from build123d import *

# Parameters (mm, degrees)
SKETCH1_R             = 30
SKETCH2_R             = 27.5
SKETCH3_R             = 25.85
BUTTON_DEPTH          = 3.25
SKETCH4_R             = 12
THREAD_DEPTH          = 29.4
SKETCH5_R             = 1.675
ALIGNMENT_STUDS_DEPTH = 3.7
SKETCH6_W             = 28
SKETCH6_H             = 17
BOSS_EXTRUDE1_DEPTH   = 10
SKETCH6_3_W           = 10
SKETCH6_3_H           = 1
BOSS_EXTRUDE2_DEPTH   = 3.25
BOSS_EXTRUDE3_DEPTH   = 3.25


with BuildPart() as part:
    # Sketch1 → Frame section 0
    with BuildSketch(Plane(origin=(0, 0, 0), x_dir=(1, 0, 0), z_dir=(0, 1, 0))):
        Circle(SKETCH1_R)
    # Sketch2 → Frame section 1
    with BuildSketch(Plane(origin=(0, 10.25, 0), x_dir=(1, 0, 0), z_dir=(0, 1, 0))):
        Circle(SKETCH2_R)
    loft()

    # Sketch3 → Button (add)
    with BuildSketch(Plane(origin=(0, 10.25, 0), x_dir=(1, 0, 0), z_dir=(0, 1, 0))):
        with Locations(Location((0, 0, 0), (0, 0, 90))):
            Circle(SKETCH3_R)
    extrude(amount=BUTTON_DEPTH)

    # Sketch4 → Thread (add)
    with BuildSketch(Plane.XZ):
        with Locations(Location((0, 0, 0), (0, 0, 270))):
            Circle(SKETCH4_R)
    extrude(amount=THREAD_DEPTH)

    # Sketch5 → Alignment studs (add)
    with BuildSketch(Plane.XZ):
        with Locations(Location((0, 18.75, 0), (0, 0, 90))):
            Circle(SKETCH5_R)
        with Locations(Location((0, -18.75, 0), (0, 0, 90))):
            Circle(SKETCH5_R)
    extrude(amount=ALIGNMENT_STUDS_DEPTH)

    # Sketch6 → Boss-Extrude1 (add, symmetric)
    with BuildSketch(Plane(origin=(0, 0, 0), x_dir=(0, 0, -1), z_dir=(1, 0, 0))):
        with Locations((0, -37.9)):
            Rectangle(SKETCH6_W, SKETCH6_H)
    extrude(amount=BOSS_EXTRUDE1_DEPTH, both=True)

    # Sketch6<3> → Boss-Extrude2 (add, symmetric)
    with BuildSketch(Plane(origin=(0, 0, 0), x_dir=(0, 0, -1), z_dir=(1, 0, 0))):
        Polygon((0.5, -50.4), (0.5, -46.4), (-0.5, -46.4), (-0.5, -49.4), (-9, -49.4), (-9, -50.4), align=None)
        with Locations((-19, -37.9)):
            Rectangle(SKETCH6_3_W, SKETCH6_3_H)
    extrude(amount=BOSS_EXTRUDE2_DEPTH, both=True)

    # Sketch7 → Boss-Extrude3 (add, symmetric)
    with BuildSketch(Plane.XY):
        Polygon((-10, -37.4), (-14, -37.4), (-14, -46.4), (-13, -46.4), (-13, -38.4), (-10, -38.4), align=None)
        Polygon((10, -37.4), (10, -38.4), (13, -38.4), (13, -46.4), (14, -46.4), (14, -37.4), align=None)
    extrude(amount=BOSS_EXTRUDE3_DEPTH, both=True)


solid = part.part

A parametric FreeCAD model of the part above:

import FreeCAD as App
import Part
import Sketcher
from FreeCAD import Vector
Q = App.Units.Quantity


def add_polygon(sketch, points):
    """Adds a closed chain of lines whose ends are joined by coincident constraints."""
    first, n = sketch.GeometryCount, len(points)
    for a, b in zip(points, points[1:] + points[:1]):
        sketch.addGeometry(Part.LineSegment(App.Vector(*a, 0), App.Vector(*b, 0)), False)
    for i in range(n):
        sketch.addConstraint(Sketcher.Constraint("Coincident", first + i, 2, first + (i + 1) % n, 1))

doc = App.newDocument("Part")
body = doc.addObject("PartDesign::Body", "Body")

# Sketch on XZ plane
sketch1 = body.newObject("Sketcher::SketchObject", "Sketch")
sketch1.AttachmentSupport = (doc.getObject("XZ_Plane"), [""])
sketch1.MapMode = "FlatFace"
sketch1.addGeometry(Part.Circle(Vector(0, 0, 0), Vector(0, 0, 1), 30), False)
sketch1.addConstraint([
    Sketcher.Constraint("Coincident", 0, 3, -1, 1),
    Sketcher.Constraint("Diameter", 0, Q("60 mm")),
])

# Sketch on XZ plane
sketch2 = body.newObject("Sketcher::SketchObject", "Sketch001")
sketch2.AttachmentSupport = (doc.getObject("XZ_Plane"), [""])
sketch2.MapMode = "FlatFace"
sketch2.AttachmentOffset = App.Placement(Vector(0, 0, -10.25), App.Rotation())
sketch2.addGeometry(Part.Circle(Vector(0, 0, 0), Vector(0, 0, 1), 28), False)
sketch2.addConstraint([
    Sketcher.Constraint("Coincident", 0, 3, -1, 1),
    Sketcher.Constraint("Diameter", 0, Q("55 mm")),
])

additiveloft = body.newObject("PartDesign::AdditiveLoft", "AdditiveLoft")
additiveloft.Profile = sketch1
additiveloft.Sections = [sketch2]

# Sketch on XZ plane
sketch3 = body.newObject("Sketcher::SketchObject", "Sketch002")
sketch3.AttachmentSupport = (doc.getObject("XZ_Plane"), [""])
sketch3.MapMode = "FlatFace"
sketch3.AttachmentOffset = App.Placement(Vector(0, 0, -10.25), App.Rotation())
sketch3.addGeometry(Part.Circle(Vector(0, 0, 0), Vector(0, 0, 1), 26), False)
sketch3.addConstraint([
    Sketcher.Constraint("Coincident", 0, 3, -1, 1),
    Sketcher.Constraint("Diameter", 0, Q("51.7 mm")),
])
pad1 = body.newObject("PartDesign::Pad", "Pad")
pad1.Profile = sketch3
pad1.Length = 3.25
pad1.Reversed = True

# Sketch on XZ plane
sketch4 = body.newObject("Sketcher::SketchObject", "Sketch003")
sketch4.AttachmentSupport = (doc.getObject("XZ_Plane"), [""])
sketch4.MapMode = "FlatFace"
sketch4.addGeometry(Part.Circle(Vector(0, 0, 0), Vector(0, 0, 1), 12), False)
sketch4.addConstraint([
    Sketcher.Constraint("Coincident", 0, 3, -1, 1),
    Sketcher.Constraint("Diameter", 0, Q("24 mm")),
])
pad2 = body.newObject("PartDesign::Pad", "Pad001")
pad2.Profile = sketch4
pad2.Length = 29.4

# Sketch on XZ plane
sketch5 = body.newObject("Sketcher::SketchObject", "Sketch004")
sketch5.AttachmentSupport = (doc.getObject("XZ_Plane"), [""])
sketch5.MapMode = "FlatFace"
sketch5.addGeometry([
    Part.Circle(Vector(0, 18.8, 0), Vector(0, 0, 1), 1.7),
    Part.Circle(Vector(0, -18.8, 0), Vector(0, 0, 1), 1.7),
], False)
sketch5.addConstraint([
    Sketcher.Constraint("Equal", 0, 1),
    Sketcher.Constraint("Symmetric", 0, 3, 1, 3, -1, 1),
    Sketcher.Constraint("PointOnObject", 0, 3, -2),
    Sketcher.Constraint("Diameter", 0, Q("3.35 mm")),
    Sketcher.Constraint("DistanceY", 1, 3, 0, 3, Q("37.5 mm")),
])
pad3 = body.newObject("PartDesign::Pad", "Pad002")
pad3.Profile = sketch5
pad3.Length = 3.7

# Sketch on YZ plane
sketch6 = body.newObject("Sketcher::SketchObject", "Sketch005")
sketch6.AttachmentSupport = (doc.getObject("YZ_Plane"), [""])
sketch6.MapMode = "FlatFace"
add_polygon(sketch6, [(-29, 14), (-46, 14), (-46, -14), (-29, -14)])  # lines 0-3
sketch6.addConstraint([
    Sketcher.Constraint("Horizontal", 0),
    Sketcher.Constraint("Vertical", 1),
    Sketcher.Constraint("Horizontal", 2),
    Sketcher.Constraint("Vertical", 3),
    Sketcher.Constraint("DistanceX", 0, 2, 0, 1, Q("17 mm")),
    Sketcher.Constraint("DistanceY", 1, 2, 1, 1, Q("28 mm")),
    Sketcher.Constraint("DistanceY", -1, 1, 0, 2, Q("14 mm")),
    Sketcher.Constraint("DistanceX", 0, 2, -1, 1, Q("46.4 mm")),
])
pad4 = body.newObject("PartDesign::Pad", "Pad003")
pad4.Profile = sketch6
pad4.Length = 20
pad4.Midplane = True

# Sketch on YZ plane
sketch7 = body.newObject("Sketcher::SketchObject", "Sketch006")
sketch7.AttachmentSupport = (doc.getObject("YZ_Plane"), [""])
sketch7.MapMode = "FlatFace"
add_polygon(sketch7, [(-50.4, -0.5), (-46.4, -0.5), (-46.4, 0.5), (-49.4, 0.5), (-49.4, 9), (-50.4, 9)])  # lines 0-5
add_polygon(sketch7, [(-37.4, 24), (-38.4, 24), (-38.4, 14), (-37.4, 14)])  # lines 6-9
sketch7.addConstraint([
    Sketcher.Constraint("Horizontal", 0),
    Sketcher.Constraint("Vertical", 1),
    Sketcher.Constraint("Horizontal", 2),
    Sketcher.Constraint("Vertical", 3),
    Sketcher.Constraint("Horizontal", 4),
    Sketcher.Constraint("Vertical", 5),
    Sketcher.Constraint("Horizontal", 6),
    Sketcher.Constraint("Vertical", 7),
    Sketcher.Constraint("Horizontal", 8),
    Sketcher.Constraint("Vertical", 9),
    Sketcher.Constraint("Equal", 4, 6),
    Sketcher.Constraint("Equal", 8, 1),
    Sketcher.Constraint("DistanceX", 0, 1, 0, 2, Q("4 mm")),
    Sketcher.Constraint("DistanceX", 2, 2, 2, 1, Q("3 mm")),
    Sketcher.Constraint("DistanceY", 7, 2, 7, 1, Q("10 mm")),
    Sketcher.Constraint("DistanceY", 3, 1, 3, 2, Q("8.5 mm")),
    Sketcher.Constraint("DistanceY", -1, 1, 3, 2, Q("9 mm")),
    Sketcher.Constraint("DistanceY", -1, 1, 6, 2, Q("24 mm")),
    Sketcher.Constraint("DistanceX", 3, 2, 6, 2, Q("11 mm")),
    Sketcher.Constraint("DistanceX", 0, 2, -1, 1, Q("46.4 mm")),
])
pad5 = body.newObject("PartDesign::Pad", "Pad004")
pad5.Profile = sketch7
pad5.Length = 6.5
pad5.Midplane = True

# Sketch on XY plane
sketch8 = body.newObject("Sketcher::SketchObject", "Sketch007")
sketch8.AttachmentSupport = (doc.getObject("XY_Plane"), [""])
sketch8.MapMode = "FlatFace"
add_polygon(sketch8, [(-10, -37.4), (-14, -37.4), (-14, -46.4), (-13, -46.4), (-13, -38.4), (-10, -38.4)])  # lines 0-5
add_polygon(sketch8, [(10, -37.4), (10, -38.4), (13, -38.4), (13, -46.4), (14, -46.4), (14, -37.4)])  # lines 6-11
sketch8.addConstraint([
    Sketcher.Constraint("Horizontal", 0),
    Sketcher.Constraint("Vertical", 1),
    Sketcher.Constraint("Horizontal", 2),
    Sketcher.Constraint("Vertical", 3),
    Sketcher.Constraint("Horizontal", 4),
    Sketcher.Constraint("Vertical", 5),
    Sketcher.Constraint("Vertical", 6),
    Sketcher.Constraint("Horizontal", 7),
    Sketcher.Constraint("Vertical", 8),
    Sketcher.Constraint("Horizontal", 9),
    Sketcher.Constraint("Vertical", 10),
    Sketcher.Constraint("Horizontal", 11),
    Sketcher.Constraint("Symmetric", 4, 2, 6, 2, -2),
    Sketcher.Constraint("Symmetric", 2, 2, 8, 2, -2),
    Sketcher.Constraint("Symmetric", 0, 2, 10, 2, -2),
    Sketcher.Constraint("Equal", 9, 5),
    Sketcher.Constraint("DistanceX", 0, 2, 0, 1, Q("4 mm")),
    Sketcher.Constraint("DistanceX", 2, 1, 2, 2, Q("1 mm")),
    Sketcher.Constraint("DistanceY", 1, 2, 1, 1, Q("9 mm")),
    Sketcher.Constraint("DistanceX", 0, 2, -1, 1, Q("14 mm")),
    Sketcher.Constraint("DistanceY", 0, 2, -1, 1, Q("37.4 mm")),
])
pad6 = body.newObject("PartDesign::Pad", "Pad005")
pad6.Profile = sketch8
pad6.Length = 6.5
pad6.Midplane = True

doc.recompute()
